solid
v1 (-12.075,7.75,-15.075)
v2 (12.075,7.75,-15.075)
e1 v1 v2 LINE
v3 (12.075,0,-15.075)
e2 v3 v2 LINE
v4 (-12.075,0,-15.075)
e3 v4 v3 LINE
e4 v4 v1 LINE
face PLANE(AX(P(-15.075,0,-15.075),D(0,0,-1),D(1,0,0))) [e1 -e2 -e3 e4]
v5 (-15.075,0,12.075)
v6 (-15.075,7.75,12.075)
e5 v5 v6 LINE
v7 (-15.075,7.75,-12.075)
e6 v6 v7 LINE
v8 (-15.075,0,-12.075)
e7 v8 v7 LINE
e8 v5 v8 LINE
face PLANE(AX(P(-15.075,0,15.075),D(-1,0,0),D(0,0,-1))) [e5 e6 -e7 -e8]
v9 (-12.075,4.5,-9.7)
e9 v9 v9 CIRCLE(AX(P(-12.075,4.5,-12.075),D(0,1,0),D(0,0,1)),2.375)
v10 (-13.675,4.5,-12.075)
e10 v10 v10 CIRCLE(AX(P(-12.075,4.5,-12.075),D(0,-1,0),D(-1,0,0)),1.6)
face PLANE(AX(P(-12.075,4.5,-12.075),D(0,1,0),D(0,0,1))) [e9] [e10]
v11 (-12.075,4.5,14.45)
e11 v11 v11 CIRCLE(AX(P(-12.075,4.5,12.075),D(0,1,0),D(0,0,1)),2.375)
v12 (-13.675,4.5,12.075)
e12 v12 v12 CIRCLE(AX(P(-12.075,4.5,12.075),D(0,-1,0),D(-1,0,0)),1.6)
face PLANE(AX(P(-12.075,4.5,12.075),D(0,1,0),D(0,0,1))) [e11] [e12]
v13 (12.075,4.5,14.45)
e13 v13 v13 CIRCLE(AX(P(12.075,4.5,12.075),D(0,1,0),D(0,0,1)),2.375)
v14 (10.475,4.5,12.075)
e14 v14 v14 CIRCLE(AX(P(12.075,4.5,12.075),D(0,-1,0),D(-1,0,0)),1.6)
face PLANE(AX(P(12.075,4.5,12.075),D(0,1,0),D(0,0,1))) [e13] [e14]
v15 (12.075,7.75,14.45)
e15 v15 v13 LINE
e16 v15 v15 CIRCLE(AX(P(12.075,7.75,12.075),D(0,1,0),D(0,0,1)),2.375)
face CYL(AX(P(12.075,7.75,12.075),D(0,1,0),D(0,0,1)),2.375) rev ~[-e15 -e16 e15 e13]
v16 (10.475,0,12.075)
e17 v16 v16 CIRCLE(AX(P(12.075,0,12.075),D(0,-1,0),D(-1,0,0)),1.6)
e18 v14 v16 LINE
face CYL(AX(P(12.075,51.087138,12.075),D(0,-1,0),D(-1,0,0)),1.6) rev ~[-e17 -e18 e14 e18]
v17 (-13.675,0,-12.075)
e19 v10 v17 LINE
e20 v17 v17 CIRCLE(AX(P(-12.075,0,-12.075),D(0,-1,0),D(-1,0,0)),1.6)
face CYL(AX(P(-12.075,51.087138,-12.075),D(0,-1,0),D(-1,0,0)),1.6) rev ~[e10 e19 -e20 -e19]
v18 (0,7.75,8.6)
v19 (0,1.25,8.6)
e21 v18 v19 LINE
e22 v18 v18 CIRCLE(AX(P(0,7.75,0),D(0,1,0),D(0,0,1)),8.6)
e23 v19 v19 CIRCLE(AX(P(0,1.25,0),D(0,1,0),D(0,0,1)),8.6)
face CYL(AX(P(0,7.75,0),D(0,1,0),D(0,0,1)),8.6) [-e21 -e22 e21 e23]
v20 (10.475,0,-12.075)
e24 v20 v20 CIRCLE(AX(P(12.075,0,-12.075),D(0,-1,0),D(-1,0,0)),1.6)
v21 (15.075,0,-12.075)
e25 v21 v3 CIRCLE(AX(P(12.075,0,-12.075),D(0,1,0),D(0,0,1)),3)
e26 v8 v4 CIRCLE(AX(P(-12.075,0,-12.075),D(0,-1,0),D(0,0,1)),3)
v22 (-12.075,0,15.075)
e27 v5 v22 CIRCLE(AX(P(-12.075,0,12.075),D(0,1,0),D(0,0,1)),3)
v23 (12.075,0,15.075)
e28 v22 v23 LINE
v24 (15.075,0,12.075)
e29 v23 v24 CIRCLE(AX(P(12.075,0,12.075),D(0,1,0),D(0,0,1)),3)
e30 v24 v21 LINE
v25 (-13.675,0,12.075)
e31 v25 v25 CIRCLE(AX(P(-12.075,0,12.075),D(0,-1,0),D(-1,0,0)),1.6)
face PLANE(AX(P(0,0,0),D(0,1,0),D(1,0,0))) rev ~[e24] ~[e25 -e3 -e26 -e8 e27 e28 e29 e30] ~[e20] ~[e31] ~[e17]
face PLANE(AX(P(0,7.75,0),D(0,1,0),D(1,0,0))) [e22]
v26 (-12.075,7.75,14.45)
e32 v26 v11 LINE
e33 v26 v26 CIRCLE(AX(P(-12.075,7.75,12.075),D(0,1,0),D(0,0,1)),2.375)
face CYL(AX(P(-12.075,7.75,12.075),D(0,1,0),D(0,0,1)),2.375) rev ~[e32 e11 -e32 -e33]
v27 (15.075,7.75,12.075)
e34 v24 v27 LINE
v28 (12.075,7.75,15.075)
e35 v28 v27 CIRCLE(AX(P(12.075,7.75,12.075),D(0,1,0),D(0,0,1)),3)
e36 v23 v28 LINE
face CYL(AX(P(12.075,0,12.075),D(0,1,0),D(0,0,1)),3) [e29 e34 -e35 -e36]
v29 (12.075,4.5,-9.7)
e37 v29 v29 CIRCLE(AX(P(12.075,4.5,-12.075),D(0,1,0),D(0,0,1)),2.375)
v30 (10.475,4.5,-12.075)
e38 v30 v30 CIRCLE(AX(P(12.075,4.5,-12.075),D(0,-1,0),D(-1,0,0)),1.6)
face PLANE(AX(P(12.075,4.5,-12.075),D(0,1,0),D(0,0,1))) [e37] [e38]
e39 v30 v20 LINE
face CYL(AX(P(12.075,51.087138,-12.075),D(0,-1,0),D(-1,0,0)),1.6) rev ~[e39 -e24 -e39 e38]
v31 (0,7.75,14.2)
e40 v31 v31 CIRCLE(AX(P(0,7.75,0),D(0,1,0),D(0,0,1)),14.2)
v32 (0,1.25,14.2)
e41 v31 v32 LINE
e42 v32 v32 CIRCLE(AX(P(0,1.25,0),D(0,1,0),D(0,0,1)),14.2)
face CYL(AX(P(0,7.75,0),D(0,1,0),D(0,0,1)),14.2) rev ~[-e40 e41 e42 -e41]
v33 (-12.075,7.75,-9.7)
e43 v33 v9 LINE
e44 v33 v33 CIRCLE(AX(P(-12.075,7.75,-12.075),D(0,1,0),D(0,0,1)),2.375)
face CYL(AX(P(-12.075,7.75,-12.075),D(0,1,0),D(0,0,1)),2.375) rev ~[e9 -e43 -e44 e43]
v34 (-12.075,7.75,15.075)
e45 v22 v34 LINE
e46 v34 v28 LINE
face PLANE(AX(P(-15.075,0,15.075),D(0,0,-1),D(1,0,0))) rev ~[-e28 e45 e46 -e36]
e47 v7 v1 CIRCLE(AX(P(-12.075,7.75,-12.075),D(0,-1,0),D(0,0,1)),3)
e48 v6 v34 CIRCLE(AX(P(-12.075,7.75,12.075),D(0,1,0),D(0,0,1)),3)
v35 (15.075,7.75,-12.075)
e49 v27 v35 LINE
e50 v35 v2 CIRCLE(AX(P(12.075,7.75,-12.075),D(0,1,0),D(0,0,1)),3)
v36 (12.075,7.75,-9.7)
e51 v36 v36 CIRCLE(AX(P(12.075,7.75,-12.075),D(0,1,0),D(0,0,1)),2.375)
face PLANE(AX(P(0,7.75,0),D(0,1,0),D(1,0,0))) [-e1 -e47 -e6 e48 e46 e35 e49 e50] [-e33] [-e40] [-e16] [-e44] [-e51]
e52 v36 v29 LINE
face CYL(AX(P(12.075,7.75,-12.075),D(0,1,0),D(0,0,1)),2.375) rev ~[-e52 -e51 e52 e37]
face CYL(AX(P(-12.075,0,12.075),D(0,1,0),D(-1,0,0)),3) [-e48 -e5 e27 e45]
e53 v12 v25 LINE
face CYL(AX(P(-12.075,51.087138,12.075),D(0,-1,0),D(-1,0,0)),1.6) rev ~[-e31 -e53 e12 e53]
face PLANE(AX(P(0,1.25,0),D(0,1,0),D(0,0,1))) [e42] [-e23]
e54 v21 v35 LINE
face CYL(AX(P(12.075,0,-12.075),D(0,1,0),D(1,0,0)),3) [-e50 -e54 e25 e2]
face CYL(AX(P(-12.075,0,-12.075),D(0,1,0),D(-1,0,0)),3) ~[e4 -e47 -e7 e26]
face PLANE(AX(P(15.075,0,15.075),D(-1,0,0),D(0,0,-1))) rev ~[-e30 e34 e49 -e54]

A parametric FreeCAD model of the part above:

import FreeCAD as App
import Part
import Sketcher


def edges_at(feature, points):
    """Names of the edges that pass closest to the given points."""
    edges = feature.Shape.Edges
    near = lambda p: min(range(len(edges)), key=lambda i: edges[i].distToShape(Part.Vertex(*p))[0])
    return sorted({f"Edge{near(p) + 1}" for p in points})

doc = App.newDocument("Part")
params = doc.addObject("Spreadsheet::Sheet", "Params")
for row, (alias, value) in enumerate([
    ("sketch1_width", "30.15 mm"),
    ("pad1_length", "7.75 mm"),
    ("fillet_radius", "3 mm"),
    ("sketch2_diameter", "3.2 mm"),
    ("hole_diameter", "3.2 mm"),
    ("sketch3_diameter", "4.75 mm"),
    ("pocket1_length", "3.25 mm"),
    ("sketch4_diameter", "28.4 mm"),
    ("sketch4_diameter2", "17.2 mm"),
    ("pocket2_length", "6.5 mm"),
], start=1):
    params.set(f"A{row}", alias)
    params.set(f"B{row}", "=" + value)
    params.setAlias(f"B{row}", alias)

body = doc.addObject("PartDesign::Body", "Body")

# Sketch on XZ plane
sketch1 = body.newObject("Sketcher::SketchObject", "Sketch")
sketch1.AttachmentSupport = (doc.getObject("XZ_Plane"), [""])
sketch1.MapMode = "FlatFace"
sketch1.addGeometry([
    Part.LineSegment(App.Vector(-15, -15, 0), App.Vector(-15, 15, 0)),
    Part.LineSegment(App.Vector(-15, 15, 0), App.Vector(15, 15, 0)),
    Part.LineSegment(App.Vector(15, 15, 0), App.Vector(15, -15, 0)),
    Part.LineSegment(App.Vector(15, -15, 0), App.Vector(-15, -15, 0)),
], False)
sketch1.addConstraint([
    Sketcher.Constraint("Coincident", 0, 2, 1, 1),
    Sketcher.Constraint("Coincident", 1, 2, 2, 1),
    Sketcher.Constraint("Coincident", 2, 2, 3, 1),
    Sketcher.Constraint("Coincident", 3, 2, 0, 1),
    Sketcher.Constraint("Vertical", 0),
    Sketcher.Constraint("Horizontal", 1),
    Sketcher.Constraint("Vertical", 2),
    Sketcher.Constraint("Horizontal", 3),
    Sketcher.Constraint("Symmetric", 0, 2, 2, 2, -1, 1),
    Sketcher.Constraint("Equal", 3, 0),
    Sketcher.Constraint("DistanceX", 1, 1, 1, 2, 30.15),
])
sketch1.setExpression("Constraints[10]", "Params.sketch1_width")
pad1 = body.newObject("PartDesign::Pad", "Pad")
pad1.Profile = sketch1
pad1.setExpression("Length", "Params.pad1_length")
pad1.Reversed = True
doc.recompute()

fillet = body.newObject("PartDesign::Fillet", "Fillet")
fillet.Base = (pad1, edges_at(pad1, [
    (15.075, 3.875, 15.075),
    (-15.075, 3.875, 15.075),
    (-15.075, 3.875, -15.075),
    (15.075, 3.875, -15.075),
]))
fillet.setExpression("Radius", "Params.fillet_radius")

# Sketch on XZ plane
sketch2 = body.newObject("Sketcher::SketchObject", "Sketch001")
sketch2.AttachmentSupport = (doc.getObject("XZ_Plane"), [""])
sketch2.MapMode = "FlatFace"
sketch2.AttachmentOffset = App.Placement(App.Vector(0, 0, -7.75), App.Rotation())
sketch2.addGeometry([
    Part.Circle(App.Vector(-12.1, -12.1, 0), App.Vector(0, 0, 1), 1.6),
    Part.Circle(App.Vector(12.1, -12.1, 0), App.Vector(0, 0, 1), 1.6),
    Part.Circle(App.Vector(12.1, 12.1, 0), App.Vector(0, 0, 1), 1.6),
    Part.Circle(App.Vector(-12.1, 12.1, 0), App.Vector(0, 0, 1), 1.6),
], False)
sketch2.addConstraint([
    Sketcher.Constraint("Equal", 0, 1),
    Sketcher.Constraint("Equal", 1, 2),
    Sketcher.Constraint("Equal", 2, 3),
    Sketcher.Constraint("Symmetric", 0, 3, 2, 3, -1, 1),
    Sketcher.Constraint("Symmetric", 1, 3, 3, 3, -1, 1),
    Sketcher.Constraint("Symmetric", 0, 3, 1, 3, -2),
    Sketcher.Constraint("Diameter", 0, 3.2),
    Sketcher.Constraint("DistanceX", 0, 3, 1, 3, 24.15),
    Sketcher.Constraint("DistanceY", 1, 3, 2, 3, 24.15),
])
sketch2.setExpression("Constraints[6]", "Params.sketch2_diameter")
doc.recompute()
hole = body.newObject("PartDesign::Hole", "Hole")
hole.Profile = sketch2
hole.ThreadType = "None"
hole.setExpression("Diameter", "Params.hole_diameter")
hole.DepthType = "ThroughAll"
hole.Reversed = True

# Sketch on XZ plane
sketch3 = body.newObject("Sketcher::SketchObject", "Sketch002")
sketch3.AttachmentSupport = (doc.getObject("XZ_Plane"), [""])
sketch3.MapMode = "FlatFace"
sketch3.AttachmentOffset = App.Placement(App.Vector(0, 0, -7.75), App.Rotation())
sketch3.addGeometry([
    Part.Circle(App.Vector(-12.1, -12.1, 0), App.Vector(0, 0, 1), 2.4),
    Part.Circle(App.Vector(12.1, -12.1, 0), App.Vector(0, 0, 1), 2.4),
    Part.Circle(App.Vector(-12.1, 12.1, 0), App.Vector(0, 0, 1), 2.4),
    Part.Circle(App.Vector(12.1, 12.1, 0), App.Vector(0, 0, 1), 2.4),
], False)
sketch3.addConstraint([
    Sketcher.Constraint("Equal", 0, 1),
    Sketcher.Constraint("Equal", 1, 2),
    Sketcher.Constraint("Equal", 2, 3),
    Sketcher.Constraint("Symmetric", 1, 3, 2, 3, -1, 1),
    Sketcher.Constraint("Symmetric", 0, 3, 3, 3, -1, 1),
    Sketcher.Constraint("Symmetric", 0, 3, 1, 3, -2),
    Sketcher.Constraint("Diameter", 0, 4.75),
    Sketcher.Constraint("DistanceX", 0, 3, 1, 3, 24.15),
    Sketcher.Constraint("DistanceY", 0, 3, 2, 3, 24.15),
])
sketch3.setExpression("Constraints[6]", "Params.sketch3_diameter")
pocket1 = body.newObject("PartDesign::Pocket", "Pocket")
pocket1.Profile = sketch3
pocket1.setExpression("Length", "Params.pocket1_length")
pocket1.Reversed = True

# Sketch on XZ plane
sketch4 = body.newObject("Sketcher::SketchObject", "Sketch003")
sketch4.AttachmentSupport = (doc.getObject("XZ_Plane"), [""])
sketch4.MapMode = "FlatFace"
sketch4.AttachmentOffset = App.Placement(App.Vector(0, 0, -7.75), App.Rotation())
sketch4.addGeometry([
    Part.Circle(App.Vector(0, 0, 0), App.Vector(0, 0, 1), 14),
    Part.Circle(App.Vector(0, 0, 0), App.Vector(0, 0, 1), 9),
], False)
sketch4.addConstraint([
    Sketcher.Constraint("Coincident", 0, 3, -1, 1),
    Sketcher.Constraint("Coincident", 1, 3, -1, 1),
    Sketcher.Constraint("Diameter", 0, 28.4),
    Sketcher.Constraint("Diameter", 1, 17.2),
])
sketch4.setExpression("Constraints[2]", "Params.sketch4_diameter")
sketch4.setExpression("Constraints[3]", "Params.sketch4_diameter2")
pocket2 = body.newObject("PartDesign::Pocket", "Pocket001")
pocket2.Profile = sketch4
pocket2.setExpression("Length", "Params.pocket2_length")
pocket2.Reversed = True

doc.recompute()
